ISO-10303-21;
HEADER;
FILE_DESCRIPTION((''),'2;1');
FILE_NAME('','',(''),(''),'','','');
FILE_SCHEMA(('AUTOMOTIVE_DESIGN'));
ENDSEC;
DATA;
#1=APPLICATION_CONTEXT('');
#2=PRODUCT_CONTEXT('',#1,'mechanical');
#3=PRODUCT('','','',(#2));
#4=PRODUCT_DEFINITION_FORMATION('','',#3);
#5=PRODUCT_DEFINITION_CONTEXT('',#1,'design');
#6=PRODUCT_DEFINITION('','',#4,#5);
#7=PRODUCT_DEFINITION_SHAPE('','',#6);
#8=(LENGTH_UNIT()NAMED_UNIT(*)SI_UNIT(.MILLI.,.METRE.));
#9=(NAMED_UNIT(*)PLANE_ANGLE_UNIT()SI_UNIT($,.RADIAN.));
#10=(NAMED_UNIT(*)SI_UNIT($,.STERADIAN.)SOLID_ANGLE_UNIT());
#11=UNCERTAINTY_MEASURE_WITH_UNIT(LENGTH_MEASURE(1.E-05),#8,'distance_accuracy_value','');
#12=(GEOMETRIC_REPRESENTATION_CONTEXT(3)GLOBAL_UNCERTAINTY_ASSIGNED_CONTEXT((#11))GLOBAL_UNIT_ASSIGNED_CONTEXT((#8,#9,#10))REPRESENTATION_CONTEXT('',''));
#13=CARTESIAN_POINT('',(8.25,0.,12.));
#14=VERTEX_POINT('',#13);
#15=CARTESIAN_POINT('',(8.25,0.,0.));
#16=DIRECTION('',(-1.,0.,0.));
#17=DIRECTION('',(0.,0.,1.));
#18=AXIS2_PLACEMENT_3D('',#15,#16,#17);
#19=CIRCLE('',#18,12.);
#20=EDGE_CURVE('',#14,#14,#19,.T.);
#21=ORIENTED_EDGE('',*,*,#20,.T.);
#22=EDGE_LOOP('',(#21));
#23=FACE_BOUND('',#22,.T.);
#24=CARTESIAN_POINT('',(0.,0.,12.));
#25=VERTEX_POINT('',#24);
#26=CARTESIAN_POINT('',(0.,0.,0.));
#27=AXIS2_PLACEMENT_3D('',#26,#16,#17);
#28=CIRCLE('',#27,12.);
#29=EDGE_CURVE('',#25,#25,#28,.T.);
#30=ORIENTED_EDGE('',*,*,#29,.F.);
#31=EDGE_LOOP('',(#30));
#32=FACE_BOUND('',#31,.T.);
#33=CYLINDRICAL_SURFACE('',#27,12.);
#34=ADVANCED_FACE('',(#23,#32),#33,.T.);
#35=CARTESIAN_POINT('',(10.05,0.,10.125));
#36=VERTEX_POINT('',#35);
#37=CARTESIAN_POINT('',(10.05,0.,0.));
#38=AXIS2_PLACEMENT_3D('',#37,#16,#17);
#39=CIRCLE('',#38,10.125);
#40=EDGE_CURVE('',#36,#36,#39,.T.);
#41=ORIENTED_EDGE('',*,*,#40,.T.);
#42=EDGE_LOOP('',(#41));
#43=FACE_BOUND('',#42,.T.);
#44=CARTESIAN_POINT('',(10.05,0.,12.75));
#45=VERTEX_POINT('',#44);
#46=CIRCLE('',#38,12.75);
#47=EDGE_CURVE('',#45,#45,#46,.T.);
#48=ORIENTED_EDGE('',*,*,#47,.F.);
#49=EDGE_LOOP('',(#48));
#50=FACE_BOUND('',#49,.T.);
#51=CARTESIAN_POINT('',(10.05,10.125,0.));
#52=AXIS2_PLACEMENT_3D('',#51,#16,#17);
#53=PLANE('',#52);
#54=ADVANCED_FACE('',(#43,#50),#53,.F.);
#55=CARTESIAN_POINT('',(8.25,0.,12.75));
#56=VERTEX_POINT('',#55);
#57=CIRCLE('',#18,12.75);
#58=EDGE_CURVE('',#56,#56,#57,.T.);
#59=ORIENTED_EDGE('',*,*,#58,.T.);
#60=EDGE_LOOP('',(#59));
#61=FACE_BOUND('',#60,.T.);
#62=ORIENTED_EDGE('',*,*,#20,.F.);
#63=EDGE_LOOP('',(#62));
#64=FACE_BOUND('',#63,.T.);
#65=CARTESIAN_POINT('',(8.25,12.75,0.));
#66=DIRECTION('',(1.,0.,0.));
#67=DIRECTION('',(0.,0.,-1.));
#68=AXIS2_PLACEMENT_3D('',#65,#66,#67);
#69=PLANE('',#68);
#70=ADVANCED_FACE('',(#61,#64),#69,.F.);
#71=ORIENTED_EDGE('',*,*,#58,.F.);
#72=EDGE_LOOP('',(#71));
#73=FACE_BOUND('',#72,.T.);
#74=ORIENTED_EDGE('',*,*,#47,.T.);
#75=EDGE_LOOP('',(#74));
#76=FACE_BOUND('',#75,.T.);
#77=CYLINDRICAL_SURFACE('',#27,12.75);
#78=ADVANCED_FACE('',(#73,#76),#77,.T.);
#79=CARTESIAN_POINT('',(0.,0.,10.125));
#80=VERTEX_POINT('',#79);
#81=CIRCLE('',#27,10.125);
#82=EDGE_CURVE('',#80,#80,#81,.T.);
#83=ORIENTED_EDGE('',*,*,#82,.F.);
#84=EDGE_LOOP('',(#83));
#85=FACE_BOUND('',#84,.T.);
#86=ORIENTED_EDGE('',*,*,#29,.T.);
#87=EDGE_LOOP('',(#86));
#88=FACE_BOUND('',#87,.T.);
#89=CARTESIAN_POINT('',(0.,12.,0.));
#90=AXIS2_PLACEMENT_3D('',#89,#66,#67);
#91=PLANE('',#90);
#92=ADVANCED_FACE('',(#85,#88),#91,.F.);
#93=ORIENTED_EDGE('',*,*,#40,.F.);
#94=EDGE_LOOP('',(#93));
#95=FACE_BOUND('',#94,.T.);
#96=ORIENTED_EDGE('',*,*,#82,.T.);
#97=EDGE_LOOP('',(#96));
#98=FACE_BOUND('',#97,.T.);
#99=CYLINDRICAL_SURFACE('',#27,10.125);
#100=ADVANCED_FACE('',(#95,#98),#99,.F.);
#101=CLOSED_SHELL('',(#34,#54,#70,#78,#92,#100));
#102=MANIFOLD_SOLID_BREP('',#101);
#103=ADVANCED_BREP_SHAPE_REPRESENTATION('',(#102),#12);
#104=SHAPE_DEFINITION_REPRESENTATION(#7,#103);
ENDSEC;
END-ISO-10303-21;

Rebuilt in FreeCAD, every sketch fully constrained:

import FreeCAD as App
import Part
import Sketcher
Q = App.Units.Quantity


def add_polygon(sketch, points):
    """Adds a closed chain of lines whose ends are joined by coincident constraints."""
    first, n = sketch.GeometryCount, len(points)
    for a, b in zip(points, points[1:] + points[:1]):
        sketch.addGeometry(Part.LineSegment(App.Vector(*a, 0), App.Vector(*b, 0)), False)
    for i in range(n):
        sketch.addConstraint(Sketcher.Constraint("Coincident", first + i, 2, first + (i + 1) % n, 1))

doc = App.newDocument("Part")
body = doc.addObject("PartDesign::Body", "Body")

# Sketch on XY plane
sketch1 = doc.addObject("Sketcher::SketchObject", "Sketch")
body.addObject(sketch1)
sketch1.AttachmentSupport = (doc.XY_Plane, [""])
sketch1.MapMode = "FlatFace"
add_polygon(sketch1, [(0, 10.125), (10.05, 10.125), (10.05, 12.75), (8.25, 12.75), (8.25, 12), (0, 12)])  # lines 0-5
sketch1.addConstraint([
    Sketcher.Constraint("Horizontal", 0),
    Sketcher.Constraint("Vertical", 1),
    Sketcher.Constraint("Horizontal", 2),
    Sketcher.Constraint("Vertical", 3),
    Sketcher.Constraint("Horizontal", 4),
    Sketcher.Constraint("Vertical", 5),
    Sketcher.Constraint("PointOnObject", 4, 2, -2),
    Sketcher.Constraint("DistanceX", 2, 2, 2, 1, Q("1.8 mm")),
    Sketcher.Constraint("DistanceY", -1, 1, 3, 2, Q("12 mm")),
    Sketcher.Constraint("DistanceX", 0, 1, 0, 2, Q("10.05 mm")),
    Sketcher.Constraint("DistanceY", 3, 2, 3, 1, Q("0.75 mm")),
    Sketcher.Constraint("DistanceY", 1, 1, 1, 2, Q("2.625 mm")),
])
revolution = doc.addObject("PartDesign::Revolution", "Revolution")
body.addObject(revolution)
revolution.Profile = sketch1
revolution.ReferenceAxis = (sketch1, ["H_Axis"])
revolution.Angle = 360

doc.recompute()
